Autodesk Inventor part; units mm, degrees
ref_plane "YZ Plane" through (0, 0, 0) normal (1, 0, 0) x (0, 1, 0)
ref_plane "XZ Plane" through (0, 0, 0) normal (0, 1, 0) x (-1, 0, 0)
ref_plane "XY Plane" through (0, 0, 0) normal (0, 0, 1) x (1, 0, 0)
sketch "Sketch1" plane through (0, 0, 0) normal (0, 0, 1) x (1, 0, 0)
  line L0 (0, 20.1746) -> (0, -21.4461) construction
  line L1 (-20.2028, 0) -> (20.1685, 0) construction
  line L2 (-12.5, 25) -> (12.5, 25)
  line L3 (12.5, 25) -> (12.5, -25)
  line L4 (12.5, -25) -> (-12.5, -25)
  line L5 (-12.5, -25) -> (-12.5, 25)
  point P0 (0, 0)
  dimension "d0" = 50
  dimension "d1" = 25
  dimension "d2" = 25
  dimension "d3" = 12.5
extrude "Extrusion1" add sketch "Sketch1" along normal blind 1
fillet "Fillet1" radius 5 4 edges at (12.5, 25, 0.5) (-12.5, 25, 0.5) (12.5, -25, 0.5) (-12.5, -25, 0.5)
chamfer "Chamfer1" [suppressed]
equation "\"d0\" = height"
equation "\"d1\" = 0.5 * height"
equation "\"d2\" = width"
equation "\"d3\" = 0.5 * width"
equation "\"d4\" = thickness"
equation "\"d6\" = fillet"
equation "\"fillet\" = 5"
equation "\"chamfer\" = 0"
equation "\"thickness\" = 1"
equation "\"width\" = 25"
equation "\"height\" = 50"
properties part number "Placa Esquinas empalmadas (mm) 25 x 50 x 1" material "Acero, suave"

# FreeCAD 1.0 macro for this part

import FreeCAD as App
import Part
import Sketcher
from FreeCAD import Vector
Q = App.Units.Quantity


def edges_at(feature, points):
    """Names of the edges that pass closest to the given points."""
    edges = feature.Shape.Edges
    near = lambda p: min(range(len(edges)), key=lambda i: edges[i].distToShape(Part.Vertex(*p))[0])
    return sorted({f"Edge{near(p) + 1}" for p in points})

doc = App.newDocument("Part")
body = doc.addObject("PartDesign::Body", "Body")

# Sketch on XY plane
sketch1 = body.newObject("Sketcher::SketchObject", "Sketch")
sketch1.AttachmentSupport = (doc.getObject("XY_Plane"), [""])
sketch1.MapMode = "FlatFace"
sketch1.addGeometry([
    Part.LineSegment(Vector(12, 25, 0), Vector(-12, 25, 0)),
    Part.LineSegment(Vector(-12, 25, 0), Vector(-12, -25, 0)),
    Part.LineSegment(Vector(-12, -25, 0), Vector(12, -25, 0)),
    Part.LineSegment(Vector(12, -25, 0), Vector(12, 25, 0)),
], False)
sketch1.addConstraint([
    Sketcher.Constraint("Coincident", 0, 2, 1, 1),
    Sketcher.Constraint("Coincident", 1, 2, 2, 1),
    Sketcher.Constraint("Coincident", 2, 2, 3, 1),
    Sketcher.Constraint("Coincident", 3, 2, 0, 1),
    Sketcher.Constraint("Horizontal", 0),
    Sketcher.Constraint("Vertical", 1),
    Sketcher.Constraint("Horizontal", 2),
    Sketcher.Constraint("Vertical", 3),
    Sketcher.Constraint("Symmetric", 0, 2, 2, 2, -1, 1),
    Sketcher.Constraint("DistanceX", 0, 2, 0, 1, Q("25 mm")),
    Sketcher.Constraint("DistanceY", 1, 2, 1, 1, Q("50 mm")),
])
pad1 = body.newObject("PartDesign::Pad", "Pad")
pad1.Profile = sketch1
pad1.Length = 1
doc.recompute()

fillet = body.newObject("PartDesign::Fillet", "Fillet")
fillet.Base = (pad1, edges_at(pad1, [
    (12.5, 25, 0.5),
    (-12.5, 25, 0.5),
    (12.5, -25, 0.5),
    (-12.5, -25, 0.5),
]))
fillet.Radius = 5

doc.recompute()
